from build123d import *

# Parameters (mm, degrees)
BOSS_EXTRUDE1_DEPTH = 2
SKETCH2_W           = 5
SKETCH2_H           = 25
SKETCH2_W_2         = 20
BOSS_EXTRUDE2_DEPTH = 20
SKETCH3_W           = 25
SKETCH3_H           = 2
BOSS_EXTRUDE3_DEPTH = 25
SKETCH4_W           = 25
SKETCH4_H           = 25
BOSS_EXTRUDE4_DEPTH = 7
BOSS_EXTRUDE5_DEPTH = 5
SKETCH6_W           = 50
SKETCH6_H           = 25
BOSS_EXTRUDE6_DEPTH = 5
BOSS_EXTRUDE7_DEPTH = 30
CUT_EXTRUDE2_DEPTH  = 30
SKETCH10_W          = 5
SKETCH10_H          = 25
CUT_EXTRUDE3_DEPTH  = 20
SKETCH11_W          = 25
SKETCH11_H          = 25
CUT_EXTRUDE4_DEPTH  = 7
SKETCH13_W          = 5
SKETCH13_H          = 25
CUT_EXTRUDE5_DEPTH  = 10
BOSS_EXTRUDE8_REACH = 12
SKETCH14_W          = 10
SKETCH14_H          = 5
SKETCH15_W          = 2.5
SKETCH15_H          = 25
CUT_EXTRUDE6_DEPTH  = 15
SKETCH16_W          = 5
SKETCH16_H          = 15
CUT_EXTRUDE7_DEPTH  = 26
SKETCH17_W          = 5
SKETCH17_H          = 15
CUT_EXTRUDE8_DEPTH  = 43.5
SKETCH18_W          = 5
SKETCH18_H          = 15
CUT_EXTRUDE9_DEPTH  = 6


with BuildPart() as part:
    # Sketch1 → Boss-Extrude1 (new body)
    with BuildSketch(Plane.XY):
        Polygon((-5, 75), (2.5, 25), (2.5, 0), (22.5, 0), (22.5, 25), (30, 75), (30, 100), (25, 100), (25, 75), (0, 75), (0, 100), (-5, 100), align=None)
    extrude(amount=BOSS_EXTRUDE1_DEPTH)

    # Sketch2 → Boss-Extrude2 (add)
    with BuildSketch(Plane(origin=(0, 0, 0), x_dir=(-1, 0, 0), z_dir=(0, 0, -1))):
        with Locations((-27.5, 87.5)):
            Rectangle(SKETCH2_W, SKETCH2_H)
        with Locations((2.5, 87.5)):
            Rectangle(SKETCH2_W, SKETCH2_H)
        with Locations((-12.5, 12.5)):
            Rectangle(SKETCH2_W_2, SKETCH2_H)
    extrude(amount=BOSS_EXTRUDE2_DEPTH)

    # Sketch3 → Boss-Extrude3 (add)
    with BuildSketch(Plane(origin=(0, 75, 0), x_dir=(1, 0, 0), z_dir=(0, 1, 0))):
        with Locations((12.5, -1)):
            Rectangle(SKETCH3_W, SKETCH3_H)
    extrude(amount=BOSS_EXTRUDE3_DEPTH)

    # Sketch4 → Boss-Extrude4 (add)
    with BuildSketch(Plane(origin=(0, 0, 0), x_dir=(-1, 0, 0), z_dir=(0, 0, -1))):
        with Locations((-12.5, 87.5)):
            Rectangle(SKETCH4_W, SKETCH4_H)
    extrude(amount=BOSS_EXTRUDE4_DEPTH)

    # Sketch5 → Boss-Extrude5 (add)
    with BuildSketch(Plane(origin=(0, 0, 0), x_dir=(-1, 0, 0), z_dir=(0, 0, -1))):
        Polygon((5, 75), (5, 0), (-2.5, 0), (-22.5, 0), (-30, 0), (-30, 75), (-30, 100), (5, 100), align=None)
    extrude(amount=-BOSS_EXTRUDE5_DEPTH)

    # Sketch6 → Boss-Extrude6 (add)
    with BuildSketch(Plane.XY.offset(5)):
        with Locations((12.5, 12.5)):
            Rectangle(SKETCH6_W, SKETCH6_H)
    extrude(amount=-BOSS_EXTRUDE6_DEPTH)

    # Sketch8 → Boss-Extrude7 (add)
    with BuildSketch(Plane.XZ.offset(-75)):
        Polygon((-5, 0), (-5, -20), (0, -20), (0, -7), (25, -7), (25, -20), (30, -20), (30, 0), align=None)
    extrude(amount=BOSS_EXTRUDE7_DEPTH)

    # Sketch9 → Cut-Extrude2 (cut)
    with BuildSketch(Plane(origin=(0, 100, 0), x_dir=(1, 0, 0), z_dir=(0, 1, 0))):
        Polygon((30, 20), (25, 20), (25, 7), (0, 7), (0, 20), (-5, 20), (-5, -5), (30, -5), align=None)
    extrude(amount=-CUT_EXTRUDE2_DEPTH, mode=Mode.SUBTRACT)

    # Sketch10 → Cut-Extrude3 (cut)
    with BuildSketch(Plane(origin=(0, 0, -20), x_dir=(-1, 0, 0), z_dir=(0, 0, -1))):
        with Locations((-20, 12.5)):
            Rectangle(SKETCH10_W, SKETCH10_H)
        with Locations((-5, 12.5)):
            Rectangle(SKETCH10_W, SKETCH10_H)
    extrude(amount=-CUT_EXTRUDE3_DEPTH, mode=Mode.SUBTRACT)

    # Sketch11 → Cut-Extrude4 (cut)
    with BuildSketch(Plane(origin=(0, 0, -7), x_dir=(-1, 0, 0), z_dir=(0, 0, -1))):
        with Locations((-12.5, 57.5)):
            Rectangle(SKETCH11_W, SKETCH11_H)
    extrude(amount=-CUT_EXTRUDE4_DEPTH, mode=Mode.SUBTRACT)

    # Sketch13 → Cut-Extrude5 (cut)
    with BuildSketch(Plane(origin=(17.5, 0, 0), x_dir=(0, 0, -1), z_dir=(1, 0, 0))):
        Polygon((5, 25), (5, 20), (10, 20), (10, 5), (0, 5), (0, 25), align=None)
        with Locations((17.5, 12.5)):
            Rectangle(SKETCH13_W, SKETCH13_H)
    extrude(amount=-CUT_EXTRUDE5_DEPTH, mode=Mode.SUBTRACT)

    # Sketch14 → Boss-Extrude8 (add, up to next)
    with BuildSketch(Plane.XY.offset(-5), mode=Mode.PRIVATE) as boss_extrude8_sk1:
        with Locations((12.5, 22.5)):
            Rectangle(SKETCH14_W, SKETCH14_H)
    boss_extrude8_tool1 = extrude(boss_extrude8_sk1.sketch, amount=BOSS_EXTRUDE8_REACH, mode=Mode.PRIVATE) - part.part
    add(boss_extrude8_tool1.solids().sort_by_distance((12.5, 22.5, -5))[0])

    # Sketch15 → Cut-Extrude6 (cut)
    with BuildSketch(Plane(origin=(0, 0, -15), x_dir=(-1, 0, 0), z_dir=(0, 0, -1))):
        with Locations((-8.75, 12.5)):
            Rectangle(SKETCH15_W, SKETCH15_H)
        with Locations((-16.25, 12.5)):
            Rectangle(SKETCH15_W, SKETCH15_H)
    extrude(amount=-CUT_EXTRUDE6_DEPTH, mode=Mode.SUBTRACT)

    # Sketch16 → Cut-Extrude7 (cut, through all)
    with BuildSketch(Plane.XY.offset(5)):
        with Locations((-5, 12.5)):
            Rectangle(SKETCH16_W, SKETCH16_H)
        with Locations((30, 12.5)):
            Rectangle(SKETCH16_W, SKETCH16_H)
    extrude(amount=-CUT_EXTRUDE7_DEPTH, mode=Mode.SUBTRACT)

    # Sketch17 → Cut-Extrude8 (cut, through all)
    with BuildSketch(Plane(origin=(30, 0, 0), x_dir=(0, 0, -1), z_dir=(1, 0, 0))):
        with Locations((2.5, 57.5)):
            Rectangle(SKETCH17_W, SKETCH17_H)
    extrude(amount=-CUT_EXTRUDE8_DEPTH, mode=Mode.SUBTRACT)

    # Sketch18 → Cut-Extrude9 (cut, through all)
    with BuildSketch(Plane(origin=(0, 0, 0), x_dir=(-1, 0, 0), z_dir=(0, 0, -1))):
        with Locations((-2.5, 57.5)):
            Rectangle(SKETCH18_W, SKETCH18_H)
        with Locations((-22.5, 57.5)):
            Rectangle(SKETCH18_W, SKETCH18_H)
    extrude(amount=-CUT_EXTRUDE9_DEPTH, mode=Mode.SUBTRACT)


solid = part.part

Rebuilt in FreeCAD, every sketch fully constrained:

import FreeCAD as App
import Part
import Sketcher
from FreeCAD import Vector

doc = App.newDocument("Part")
body = doc.addObject("PartDesign::Body", "Body")

sketch1 = body.newObject("Sketcher::SketchObject", "Sketch")
sketch1.AttachmentSupport = (doc.getObject("XY_Plane"), [""])
sketch1.MapMode = "FlatFace"
sketch1.addGeometry(Part.LineSegment(Vector(-5, 75, 0), Vector(2, 25, 0)), False)
sketch1.addGeometry(Part.LineSegment(Vector(2, 25, 0), Vector(2, 0, 0)), False)
sketch1.addGeometry(Part.LineSegment(Vector(2, 0, 0), Vector(22, 0, 0)), False)
sketch1.addGeometry(Part.LineSegment(Vector(22, 0, 0), Vector(22, 25, 0)), False)
sketch1.addGeometry(Part.LineSegment(Vector(22, 25, 0), Vector(30, 75, 0)), False)
sketch1.addGeometry(Part.LineSegment(Vector(30, 75, 0), Vector(30, 100, 0)), False)
sketch1.addGeometry(Part.LineSegment(Vector(30, 100, 0), Vector(25, 100, 0)), False)
sketch1.addGeometry(Part.LineSegment(Vector(25, 100, 0), Vector(25, 75, 0)), False)
sketch1.addGeometry(Part.LineSegment(Vector(25, 75, 0), Vector(0, 75, 0)), False)
sketch1.addGeometry(Part.LineSegment(Vector(0, 75, 0), Vector(0, 100, 0)), False)
sketch1.addGeometry(Part.LineSegment(Vector(0, 100, 0), Vector(-5, 100, 0)), False)
sketch1.addGeometry(Part.LineSegment(Vector(-5, 100, 0), Vector(-5, 75, 0)), False)
sketch1.addConstraint(Sketcher.Constraint("Coincident", 0, 2, 1, 1))
sketch1.addConstraint(Sketcher.Constraint("Coincident", 1, 2, 2, 1))
sketch1.addConstraint(Sketcher.Constraint("Coincident", 2, 2, 3, 1))
sketch1.addConstraint(Sketcher.Constraint("Coincident", 3, 2, 4, 1))
sketch1.addConstraint(Sketcher.Constraint("Coincident", 4, 2, 5, 1))
sketch1.addConstraint(Sketcher.Constraint("Coincident", 5, 2, 6, 1))
sketch1.addConstraint(Sketcher.Constraint("Coincident", 6, 2, 7, 1))
sketch1.addConstraint(Sketcher.Constraint("Coincident", 7, 2, 8, 1))
sketch1.addConstraint(Sketcher.Constraint("Coincident", 8, 2, 9, 1))
sketch1.addConstraint(Sketcher.Constraint("Coincident", 9, 2, 10, 1))
sketch1.addConstraint(Sketcher.Constraint("Coincident", 10, 2, 11, 1))
sketch1.addConstraint(Sketcher.Constraint("Coincident", 11, 2, 0, 1))
sketch1.addConstraint(Sketcher.Constraint("Vertical", 1))
sketch1.addConstraint(Sketcher.Constraint("Horizontal", 2))
sketch1.addConstraint(Sketcher.Constraint("Vertical", 3))
sketch1.addConstraint(Sketcher.Constraint("Vertical", 5))
sketch1.addConstraint(Sketcher.Constraint("Horizontal", 6))
sketch1.addConstraint(Sketcher.Constraint("Vertical", 7))
sketch1.addConstraint(Sketcher.Constraint("Horizontal", 8))
sketch1.addConstraint(Sketcher.Constraint("Vertical", 9))
sketch1.addConstraint(Sketcher.Constraint("Horizontal", 10))
sketch1.addConstraint(Sketcher.Constraint("Vertical", 11))
sketch1.addConstraint(Sketcher.Constraint("PointOnObject", 1, 2, -1))
sketch1.addConstraint(Sketcher.Constraint("PointOnObject", 8, 2, -2))
sketch1.addConstraint(Sketcher.Constraint("Horizontal", 0, 2, 3, 2))
sketch1.addConstraint(Sketcher.Constraint("Horizontal", 4, 2, 7, 2))
sketch1.addConstraint(Sketcher.Constraint("Horizontal", 6, 2, 9, 2))
sketch1.addConstraint(Sketcher.Constraint("Horizontal", 8, 2, 11, 2))
sketch1.addConstraint(Sketcher.Constraint("Equal", 6, 10))
sketch1.addConstraint(Sketcher.Constraint("Equal", 8, 1))
sketch1.addConstraint(Sketcher.Constraint("Equal", 3, 5))
sketch1.addConstraint(Sketcher.Constraint("Equal", 0, 4))
sketch1.addConstraint(Sketcher.Constraint("DistanceX", 2, 1, 2, 2, 20.0))
sketch1.addConstraint(Sketcher.Constraint("DistanceX", 6, 2, 6, 1, 5.0))
sketch1.addConstraint(Sketcher.Constraint("DistanceX", 8, 2, 8, 1, 25.0))
sketch1.addConstraint(Sketcher.Constraint("DistanceY", -1, 1, 4, 2, 75.0))
pad1 = body.newObject("PartDesign::Pad", "Pad")
pad1.Profile = sketch1
pad1.Length = 2

sketch2 = body.newObject("Sketcher::SketchObject", "Sketch001")
sketch2.AttachmentSupport = (doc.getObject("XY_Plane"), [""])
sketch2.MapMode = "FlatFace"
sketch2.addGeometry(Part.LineSegment(Vector(30, 100, 0), Vector(30, 75, 0)), False)
sketch2.addGeometry(Part.LineSegment(Vector(30, 75, 0), Vector(25, 75, 0)), False)
sketch2.addGeometry(Part.LineSegment(Vector(25, 75, 0), Vector(25, 100, 0)), False)
sketch2.addGeometry(Part.LineSegment(Vector(25, 100, 0), Vector(30, 100, 0)), False)
sketch2.addGeometry(Part.LineSegment(Vector(0, 100, 0), Vector(0, 75, 0)), False)
sketch2.addGeometry(Part.LineSegment(Vector(0, 75, 0), Vector(-5, 75, 0)), False)
sketch2.addGeometry(Part.LineSegment(Vector(-5, 75, 0), Vector(-5, 100, 0)), False)
sketch2.addGeometry(Part.LineSegment(Vector(-5, 100, 0), Vector(0, 100, 0)), False)
sketch2.addGeometry(Part.LineSegment(Vector(22, 25, 0), Vector(22, 0, 0)), False)
sketch2.addGeometry(Part.LineSegment(Vector(22, 0, 0), Vector(2, 0, 0)), False)
sketch2.addGeometry(Part.LineSegment(Vector(2, 0, 0), Vector(2, 25, 0)), False)
sketch2.addGeometry(Part.LineSegment(Vector(2, 25, 0), Vector(22, 25, 0)), False)
sketch2.addConstraint(Sketcher.Constraint("Coincident", 0, 2, 1, 1))
sketch2.addConstraint(Sketcher.Constraint("Coincident", 1, 2, 2, 1))
sketch2.addConstraint(Sketcher.Constraint("Coincident", 2, 2, 3, 1))
sketch2.addConstraint(Sketcher.Constraint("Coincident", 3, 2, 0, 1))
sketch2.addConstraint(Sketcher.Constraint("Coincident", 4, 2, 5, 1))
sketch2.addConstraint(Sketcher.Constraint("Coincident", 5, 2, 6, 1))
sketch2.addConstraint(Sketcher.Constraint("Coincident", 6, 2, 7, 1))
sketch2.addConstraint(Sketcher.Constraint("Coincident", 7, 2, 4, 1))
sketch2.addConstraint(Sketcher.Constraint("Coincident", 8, 2, 9, 1))
sketch2.addConstraint(Sketcher.Constraint("Coincident", 9, 2, 10, 1))
sketch2.addConstraint(Sketcher.Constraint("Coincident", 10, 2, 11, 1))
sketch2.addConstraint(Sketcher.Constraint("Coincident", 11, 2, 8, 1))
sketch2.addConstraint(Sketcher.Constraint("Vertical", 0))
sketch2.addConstraint(Sketcher.Constraint("Horizontal", 1))
sketch2.addConstraint(Sketcher.Constraint("Vertical", 2))
sketch2.addConstraint(Sketcher.Constraint("Horizontal", 3))
sketch2.addConstraint(Sketcher.Constraint("Vertical", 4))
sketch2.addConstraint(Sketcher.Constraint("Horizontal", 5))
sketch2.addConstraint(Sketcher.Constraint("Vertical", 6))
sketch2.addConstraint(Sketcher.Constraint("Horizontal", 7))
sketch2.addConstraint(Sketcher.Constraint("Vertical", 8))
sketch2.addConstraint(Sketcher.Constraint("Horizontal", 9))
sketch2.addConstraint(Sketcher.Constraint("Vertical", 10))
sketch2.addConstraint(Sketcher.Constraint("Horizontal", 11))
sketch2.addConstraint(Sketcher.Constraint("PointOnObject", 4, 2, -2))
sketch2.addConstraint(Sketcher.Constraint("PointOnObject", 8, 2, -1))
sketch2.addConstraint(Sketcher.Constraint("Horizontal", 1, 2, 4, 2))
sketch2.addConstraint(Sketcher.Constraint("Horizontal", 3, 2, 6, 2))
sketch2.addConstraint(Sketcher.Constraint("Equal", 3, 5))
sketch2.addConstraint(Sketcher.Constraint("Equal", 6, 8))
sketch2.addConstraint(Sketcher.Constraint("DistanceX", 1, 2, 1, 1, 5.0))
sketch2.addConstraint(Sketcher.Constraint("DistanceX", 9, 2, 9, 1, 20.0))
sketch2.addConstraint(Sketcher.Constraint("DistanceY", 0, 2, 0, 1, 25.0))
sketch2.addConstraint(Sketcher.Constraint("DistanceX", -1, 1, 0, 2, 30.0))
sketch2.addConstraint(Sketcher.Constraint("DistanceY", -1, 1, 0, 2, 75.0))
sketch2.addConstraint(Sketcher.Constraint("DistanceX", -1, 1, 8, 2, 22.5))
pad2 = body.newObject("PartDesign::Pad", "Pad001")
pad2.Profile = sketch2
pad2.Length = 20
pad2.Reversed = True

sketch3 = body.newObject("Sketcher::SketchObject", "Sketch002")
sketch3.AttachmentSupport = (doc.getObject("XZ_Plane"), [""])
sketch3.MapMode = "FlatFace"
sketch3.AttachmentOffset = App.Placement(Vector(0, 0, -75), App.Rotation())
sketch3.addGeometry(Part.LineSegment(Vector(0, 0, 0), Vector(0, 2, 0)), False)
sketch3.addGeometry(Part.LineSegment(Vector(0, 2, 0), Vector(25, 2, 0)), False)
sketch3.addGeometry(Part.LineSegment(Vector(25, 2, 0), Vector(25, 0, 0)), False)
sketch3.addGeometry(Part.LineSegment(Vector(25, 0, 0), Vector(0, 0, 0)), False)
sketch3.addConstraint(Sketcher.Constraint("Coincident", 0, 2, 1, 1))
sketch3.addConstraint(Sketcher.Constraint("Coincident", 1, 2, 2, 1))
sketch3.addConstraint(Sketcher.Constraint("Coincident", 2, 2, 3, 1))
sketch3.addConstraint(Sketcher.Constraint("Coincident", 3, 2, 0, 1))
sketch3.addConstraint(Sketcher.Constraint("Vertical", 0))
sketch3.addConstraint(Sketcher.Constraint("Horizontal", 1))
sketch3.addConstraint(Sketcher.Constraint("Vertical", 2))
sketch3.addConstraint(Sketcher.Constraint("Horizontal", 3))
sketch3.addConstraint(Sketcher.Constraint("Coincident", 3, 2, -1, 1))
sketch3.addConstraint(Sketcher.Constraint("DistanceX", 1, 1, 1, 2, 25.0))
sketch3.addConstraint(Sketcher.Constraint("DistanceY", 0, 1, 0, 2, 2.0))
pad3 = body.newObject("PartDesign::Pad", "Pad002")
pad3.Profile = sketch3
pad3.Length = 25
pad3.Reversed = True

sketch4 = body.newObject("Sketcher::SketchObject", "Sketch003")
sketch4.AttachmentSupport = (doc.getObject("XY_Plane"), [""])
sketch4.MapMode = "FlatFace"
sketch4.addGeometry(Part.LineSegment(Vector(25, 100, 0), Vector(25, 75, 0)), False)
sketch4.addGeometry(Part.LineSegment(Vector(25, 75, 0), Vector(0, 75, 0)), False)
sketch4.addGeometry(Part.LineSegment(Vector(0, 75, 0), Vector(0, 100, 0)), False)
sketch4.addGeometry(Part.LineSegment(Vector(0, 100, 0), Vector(25, 100, 0)), False)
sketch4.addConstraint(Sketcher.Constraint("Coincident", 0, 2, 1, 1))
sketch4.addConstraint(Sketcher.Constraint("Coincident", 1, 2, 2, 1))
sketch4.addConstraint(Sketcher.Constraint("Coincident", 2, 2, 3, 1))
sketch4.addConstraint(Sketcher.Constraint("Coincident", 3, 2, 0, 1))
sketch4.addConstraint(Sketcher.Constraint("Vertical", 0))
sketch4.addConstraint(Sketcher.Constraint("Horizontal", 1))
sketch4.addConstraint(Sketcher.Constraint("Vertical", 2))
sketch4.addConstraint(Sketcher.Constraint("Horizontal", 3))
sketch4.addConstraint(Sketcher.Constraint("PointOnObject", 1, 2, -2))
sketch4.addConstraint(Sketcher.Constraint("Equal", 3, 0))
sketch4.addConstraint(Sketcher.Constraint("DistanceX", 1, 2, 1, 1, 25.0))
sketch4.addConstraint(Sketcher.Constraint("DistanceY", -1, 1, 0, 2, 75.0))
pad4 = body.newObject("PartDesign::Pad", "Pad003")
pad4.Profile = sketch4
pad4.Length = 7
pad4.Reversed = True

sketch5 = body.newObject("Sketcher::SketchObject", "Sketch004")
sketch5.AttachmentSupport = (doc.getObject("XY_Plane"), [""])
sketch5.MapMode = "FlatFace"
sketch5.addGeometry(Part.LineSegment(Vector(-5, 0, 0), Vector(-5, 100, 0)), False)
sketch5.addGeometry(Part.LineSegment(Vector(-5, 100, 0), Vector(30, 100, 0)), False)
sketch5.addGeometry(Part.LineSegment(Vector(30, 100, 0), Vector(30, 0, 0)), False)
sketch5.addGeometry(Part.LineSegment(Vector(30, 0, 0), Vector(-5, 0, 0)), False)
sketch5.addConstraint(Sketcher.Constraint("Coincident", 0, 2, 1, 1))
sketch5.addConstraint(Sketcher.Constraint("Coincident", 1, 2, 2, 1))
sketch5.addConstraint(Sketcher.Constraint("Coincident", 2, 2, 3, 1))
sketch5.addConstraint(Sketcher.Constraint("Coincident", 3, 2, 0, 1))
sketch5.addConstraint(Sketcher.Constraint("Vertical", 0))
sketch5.addConstraint(Sketcher.Constraint("Horizontal", 1))
sketch5.addConstraint(Sketcher.Constraint("Vertical", 2))
sketch5.addConstraint(Sketcher.Constraint("Horizontal", 3))
sketch5.addConstraint(Sketcher.Constraint("PointOnObject", 2, 2, -1))
sketch5.addConstraint(Sketcher.Constraint("DistanceX", 1, 1, 1, 2, 35.0))
sketch5.addConstraint(Sketcher.Constraint("DistanceY", 0, 1, 0, 2, 100.0))
sketch5.addConstraint(Sketcher.Constraint("DistanceX", 0, 2, -1, 1, 5.0))
pad5 = body.newObject("PartDesign::Pad", "Pad004")
pad5.Profile = sketch5
pad5.Length = 5

sketch6 = body.newObject("Sketcher::SketchObject", "Sketch005")
sketch6.AttachmentSupport = (doc.getObject("XY_Plane"), [""])
sketch6.MapMode = "FlatFace"
sketch6.AttachmentOffset = App.Placement(Vector(0, 0, 5), App.Rotation())
sketch6.addGeometry(Part.LineSegment(Vector(-12, 25, 0), Vector(-12, 0, 0)), False)
sketch6.addGeometry(Part.LineSegment(Vector(-12, 0, 0), Vector(38, 0, 0)), False)
sketch6.addGeometry(Part.LineSegment(Vector(38, 0, 0), Vector(38, 25, 0)), False)
sketch6.addGeometry(Part.LineSegment(Vector(38, 25, 0), Vector(-12, 25, 0)), False)
sketch6.addConstraint(Sketcher.Constraint("Coincident", 0, 2, 1, 1))
sketch6.addConstraint(Sketcher.Constraint("Coincident", 1, 2, 2, 1))
sketch6.addConstraint(Sketcher.Constraint("Coincident", 2, 2, 3, 1))
sketch6.addConstraint(Sketcher.Constraint("Coincident", 3, 2, 0, 1))
sketch6.addConstraint(Sketcher.Constraint("Vertical", 0))
sketch6.addConstraint(Sketcher.Constraint("Horizontal", 1))
sketch6.addConstraint(Sketcher.Constraint("Vertical", 2))
sketch6.addConstraint(Sketcher.Constraint("Horizontal", 3))
sketch6.addConstraint(Sketcher.Constraint("PointOnObject", 0, 2, -1))
sketch6.addConstraint(Sketcher.Constraint("DistanceX", 1, 1, 1, 2, 50.0))
sketch6.addConstraint(Sketcher.Constraint("DistanceY", 0, 2, 0, 1, 25.0))
sketch6.addConstraint(Sketcher.Constraint("DistanceX", 0, 2, -1, 1, 12.5))
pad6 = body.newObject("PartDesign::Pad", "Pad005")
pad6.Profile = sketch6
pad6.Length = 5
pad6.Reversed = True

sketch7 = body.newObject("Sketcher::SketchObject", "Sketch006")
sketch7.AttachmentSupport = (doc.getObject("XZ_Plane"), [""])
sketch7.MapMode = "FlatFace"
sketch7.AttachmentOffset = App.Placement(Vector(0, 0, -75), App.Rotation())
sketch7.addGeometry(Part.LineSegment(Vector(-5, 0, 0), Vector(-5, -20, 0)), False)
sketch7.addGeometry(Part.LineSegment(Vector(-5, -20, 0), Vector(0, -20, 0)), False)
sketch7.addGeometry(Part.LineSegment(Vector(0, -20, 0), Vector(0, -7, 0)), False)
sketch7.addGeometry(Part.LineSegment(Vector(0, -7, 0), Vector(25, -7, 0)), False)
sketch7.addGeometry(Part.LineSegment(Vector(25, -7, 0), Vector(25, -20, 0)), False)
sketch7.addGeometry(Part.LineSegment(Vector(25, -20, 0), Vector(30, -20, 0)), False)
sketch7.addGeometry(Part.LineSegment(Vector(30, -20, 0), Vector(30, 0, 0)), False)
sketch7.addGeometry(Part.LineSegment(Vector(30, 0, 0), Vector(-5, 0, 0)), False)
sketch7.addConstraint(Sketcher.Constraint("Coincident", 0, 2, 1, 1))
sketch7.addConstraint(Sketcher.Constraint("Coincident", 1, 2, 2, 1))
sketch7.addConstraint(Sketcher.Constraint("Coincident", 2, 2, 3, 1))
sketch7.addConstraint(Sketcher.Constraint("Coincident", 3, 2, 4, 1))
sketch7.addConstraint(Sketcher.Constraint("Coincident", 4, 2, 5, 1))
sketch7.addConstraint(Sketcher.Constraint("Coincident", 5, 2, 6, 1))
sketch7.addConstraint(Sketcher.Constraint("Coincident", 6, 2, 7, 1))
sketch7.addConstraint(Sketcher.Constraint("Coincident", 7, 2, 0, 1))
sketch7.addConstraint(Sketcher.Constraint("Vertical", 0))
sketch7.addConstraint(Sketcher.Constraint("Horizontal", 1))
sketch7.addConstraint(Sketcher.Constraint("Vertical", 2))
sketch7.addConstraint(Sketcher.Constraint("Horizontal", 3))
sketch7.addConstraint(Sketcher.Constraint("Vertical", 4))
sketch7.addConstraint(Sketcher.Constraint("Horizontal", 5))
sketch7.addConstraint(Sketcher.Constraint("Vertical", 6))
sketch7.addConstraint(Sketcher.Constraint("Horizontal", 7))
sketch7.addConstraint(Sketcher.Constraint("PointOnObject", 1, 2, -2))
sketch7.addConstraint(Sketcher.Constraint("PointOnObject", 6, 2, -1))
sketch7.addConstraint(Sketcher.Constraint("Horizontal", 1, 2, 4, 2))
sketch7.addConstraint(Sketcher.Constraint("Equal", 1, 5))
sketch7.addConstraint(Sketcher.Constraint("DistanceX", 1, 1, 1, 2, 5.0))
sketch7.addConstraint(Sketcher.Constraint("DistanceX", 3, 1, 3, 2, 25.0))
sketch7.addConstraint(Sketcher.Constraint("DistanceY", 0, 2, 0, 1, 20.0))
sketch7.addConstraint(Sketcher.Constraint("DistanceY", 2, 1, 2, 2, 13.0))
pad7 = body.newObject("PartDesign::Pad", "Pad006")
pad7.Profile = sketch7
pad7.Length = 30

sketch8 = body.newObject("Sketcher::SketchObject", "Sketch007")
sketch8.AttachmentSupport = (doc.getObject("XZ_Plane"), [""])
sketch8.MapMode = "FlatFace"
sketch8.AttachmentOffset = App.Placement(Vector(0, 0, -100), App.Rotation())
sketch8.addGeometry(Part.LineSegment(Vector(30, -20, 0), Vector(25, -20, 0)), False)
sketch8.addGeometry(Part.LineSegment(Vector(25, -20, 0), Vector(25, -7, 0)), False)
sketch8.addGeometry(Part.LineSegment(Vector(25, -7, 0), Vector(0, -7, 0)), False)
sketch8.addGeometry(Part.LineSegment(Vector(0, -7, 0), Vector(0, -20, 0)), False)
sketch8.addGeometry(Part.LineSegment(Vector(0, -20, 0), Vector(-5, -20, 0)), False)
sketch8.addGeometry(Part.LineSegment(Vector(-5, -20, 0), Vector(-5, 5, 0)), False)
sketch8.addGeometry(Part.LineSegment(Vector(-5, 5, 0), Vector(30, 5, 0)), False)
sketch8.addGeometry(Part.LineSegment(Vector(30, 5, 0), Vector(30, -20, 0)), False)
sketch8.addConstraint(Sketcher.Constraint("Coincident", 0, 2, 1, 1))
sketch8.addConstraint(Sketcher.Constraint("Coincident", 1, 2, 2, 1))
sketch8.addConstraint(Sketcher.Constraint("Coincident", 2, 2, 3, 1))
sketch8.addConstraint(Sketcher.Constraint("Coincident", 3, 2, 4, 1))
sketch8.addConstraint(Sketcher.Constraint("Coincident", 4, 2, 5, 1))
sketch8.addConstraint(Sketcher.Constraint("Coincident", 5, 2, 6, 1))
sketch8.addConstraint(Sketcher.Constraint("Coincident", 6, 2, 7, 1))
sketch8.addConstraint(Sketcher.Constraint("Coincident", 7, 2, 0, 1))
sketch8.addConstraint(Sketcher.Constraint("Horizontal", 0))
sketch8.addConstraint(Sketcher.Constraint("Vertical", 1))
sketch8.addConstraint(Sketcher.Constraint("Horizontal", 2))
sketch8.addConstraint(Sketcher.Constraint("Vertical", 3))
sketch8.addConstraint(Sketcher.Constraint("Horizontal", 4))
sketch8.addConstraint(Sketcher.Constraint("Vertical", 5))
sketch8.addConstraint(Sketcher.Constraint("Horizontal", 6))
sketch8.addConstraint(Sketcher.Constraint("Vertical", 7))
sketch8.addConstraint(Sketcher.Constraint("PointOnObject", 2, 2, -2))
sketch8.addConstraint(Sketcher.Constraint("Horizontal", 0, 2, 3, 2))
sketch8.addConstraint(Sketcher.Constraint("Equal", 0, 4))
sketch8.addConstraint(Sketcher.Constraint("Equal", 2, 5))
sketch8.addConstraint(Sketcher.Constraint("DistanceX", 0, 2, 0, 1, 5.0))
sketch8.addConstraint(Sketcher.Constraint("DistanceX", 2, 2, 2, 1, 25.0))
sketch8.addConstraint(Sketcher.Constraint("DistanceY", 1, 1, 1, 2, 13.0))
sketch8.addConstraint(Sketcher.Constraint("DistanceY", 0, 2, -1, 1, 20.0))
pocket1 = body.newObject("PartDesign::Pocket", "Pocket")
pocket1.Profile = sketch8
pocket1.Length = 30
pocket1.Reversed = True

sketch9 = body.newObject("Sketcher::SketchObject", "Sketch008")
sketch9.AttachmentSupport = (doc.getObject("XY_Plane"), [""])
sketch9.MapMode = "FlatFace"
sketch9.AttachmentOffset = App.Placement(Vector(0, 0, -20), App.Rotation())
sketch9.addGeometry(Part.LineSegment(Vector(22, 25, 0), Vector(22, 0, 0)), False)
sketch9.addGeometry(Part.LineSegment(Vector(22, 0, 0), Vector(18, 0, 0)), False)
sketch9.addGeometry(Part.LineSegment(Vector(18, 0, 0), Vector(18, 25, 0)), False)
sketch9.addGeometry(Part.LineSegment(Vector(18, 25, 0), Vector(22, 25, 0)), False)
sketch9.addGeometry(Part.LineSegment(Vector(8, 25, 0), Vector(8, 0, 0)), False)
sketch9.addGeometry(Part.LineSegment(Vector(8, 0, 0), Vector(2, 0, 0)), False)
sketch9.addGeometry(Part.LineSegment(Vector(2, 0, 0), Vector(2, 25, 0)), False)
sketch9.addGeometry(Part.LineSegment(Vector(2, 25, 0), Vector(8, 25, 0)), False)
sketch9.addConstraint(Sketcher.Constraint("Coincident", 0, 2, 1, 1))
sketch9.addConstraint(Sketcher.Constraint("Coincident", 1, 2, 2, 1))
sketch9.addConstraint(Sketcher.Constraint("Coincident", 2, 2, 3, 1))
sketch9.addConstraint(Sketcher.Constraint("Coincident", 3, 2, 0, 1))
sketch9.addConstraint(Sketcher.Constraint("Coincident", 4, 2, 5, 1))
sketch9.addConstraint(Sketcher.Constraint("Coincident", 5, 2, 6, 1))
sketch9.addConstraint(Sketcher.Constraint("Coincident", 6, 2, 7, 1))
sketch9.addConstraint(Sketcher.Constraint("Coincident", 7, 2, 4, 1))
sketch9.addConstraint(Sketcher.Constraint("Vertical", 0))
sketch9.addConstraint(Sketcher.Constraint("Horizontal", 1))
sketch9.addConstraint(Sketcher.Constraint("Vertical", 2))
sketch9.addConstraint(Sketcher.Constraint("Horizontal", 3))
sketch9.addConstraint(Sketcher.Constraint("Vertical", 4))
sketch9.addConstraint(Sketcher.Constraint("Horizontal", 5))
sketch9.addConstraint(Sketcher.Constraint("Vertical", 6))
sketch9.addConstraint(Sketcher.Constraint("Horizontal", 7))
sketch9.addConstraint(Sketcher.Constraint("PointOnObject", 0, 2, -1))
sketch9.addConstraint(Sketcher.Constraint("PointOnObject", 4, 2, -1))
sketch9.addConstraint(Sketcher.Constraint("Horizontal", 3, 2, 6, 2))
sketch9.addConstraint(Sketcher.Constraint("Equal", 3, 5))
sketch9.addConstraint(Sketcher.Constraint("DistanceX", 1, 2, 1, 1, 5.0))
sketch9.addConstraint(Sketcher.Constraint("DistanceY", 0, 2, 0, 1, 25.0))
sketch9.addConstraint(Sketcher.Constraint("DistanceX", 4, 2, 1, 2, 10.0))
sketch9.addConstraint(Sketcher.Constraint("DistanceX", -1, 1, 0, 2, 22.5))
pocket2 = body.newObject("PartDesign::Pocket", "Pocket001")
pocket2.Profile = sketch9
pocket2.Length = 20
pocket2.Reversed = True

sketch10 = body.newObject("Sketcher::SketchObject", "Sketch009")
sketch10.AttachmentSupport = (doc.getObject("XY_Plane"), [""])
sketch10.MapMode = "FlatFace"
sketch10.AttachmentOffset = App.Placement(Vector(0, 0, -7), App.Rotation())
sketch10.addGeometry(Part.LineSegment(Vector(25, 70, 0), Vector(25, 45, 0)), False)
sketch10.addGeometry(Part.LineSegment(Vector(25, 45, 0), Vector(0, 45, 0)), False)
sketch10.addGeometry(Part.LineSegment(Vector(0, 45, 0), Vector(0, 70, 0)), False)
sketch10.addGeometry(Part.LineSegment(Vector(0, 70, 0), Vector(25, 70, 0)), False)
sketch10.addConstraint(Sketcher.Constraint("Coincident", 0, 2, 1, 1))
sketch10.addConstraint(Sketcher.Constraint("Coincident", 1, 2, 2, 1))
sketch10.addConstraint(Sketcher.Constraint("Coincident", 2, 2, 3, 1))
sketch10.addConstraint(Sketcher.Constraint("Coincident", 3, 2, 0, 1))
sketch10.addConstraint(Sketcher.Constraint("Vertical", 0))
sketch10.addConstraint(Sketcher.Constraint("Horizontal", 1))
sketch10.addConstraint(Sketcher.Constraint("Vertical", 2))
sketch10.addConstraint(Sketcher.Constraint("Horizontal", 3))
sketch10.addConstraint(Sketcher.Constraint("PointOnObject", 1, 2, -2))
sketch10.addConstraint(Sketcher.Constraint("Equal", 3, 0))
sketch10.addConstraint(Sketcher.Constraint("DistanceX", 1, 2, 1, 1, 25.0))
sketch10.addConstraint(Sketcher.Constraint("DistanceY", -1, 1, 0, 2, 45.0))
pocket3 = body.newObject("PartDesign::Pocket", "Pocket002")
pocket3.Profile = sketch10
pocket3.Length = 7
pocket3.Reversed = True

sketch11 = body.newObject("Sketcher::SketchObject", "Sketch010")
sketch11.AttachmentSupport = (doc.getObject("YZ_Plane"), [""])
sketch11.MapMode = "FlatFace"
sketch11.AttachmentOffset = App.Placement(Vector(0, 0, 17.5), App.Rotation())
sketch11.addGeometry(Part.LineSegment(Vector(20, -5, 0), Vector(25, -5, 0)), False)
sketch11.addGeometry(Part.LineSegment(Vector(25, -5, 0), Vector(25, 0, 0)), False)
sketch11.addGeometry(Part.LineSegment(Vector(25, 0, 0), Vector(5, 0, 0)), False)
sketch11.addGeometry(Part.LineSegment(Vector(5, 0, 0), Vector(5, -10, 0)), False)
sketch11.addGeometry(Part.LineSegment(Vector(5, -10, 0), Vector(20, -10, 0)), False)
sketch11.addGeometry(Part.LineSegment(Vector(20, -10, 0), Vector(20, -5, 0)), False)
sketch11.addGeometry(Part.LineSegment(Vector(25, -15, 0), Vector(0, -15, 0)), False)
sketch11.addGeometry(Part.LineSegment(Vector(0, -15, 0), Vector(0, -20, 0)), False)
sketch11.addGeometry(Part.LineSegment(Vector(0, -20, 0), Vector(25, -20, 0)), False)
sketch11.addGeometry(Part.LineSegment(Vector(25, -20, 0), Vector(25, -15, 0)), False)
sketch11.addConstraint(Sketcher.Constraint("Coincident", 0, 2, 1, 1))
sketch11.addConstraint(Sketcher.Constraint("Coincident", 1, 2, 2, 1))
sketch11.addConstraint(Sketcher.Constraint("Coincident", 2, 2, 3, 1))
sketch11.addConstraint(Sketcher.Constraint("Coincident", 3, 2, 4, 1))
sketch11.addConstraint(Sketcher.Constraint("Coincident", 4, 2, 5, 1))
sketch11.addConstraint(Sketcher.Constraint("Coincident", 5, 2, 0, 1))
sketch11.addConstraint(Sketcher.Constraint("Coincident", 6, 2, 7, 1))
sketch11.addConstraint(Sketcher.Constraint("Coincident", 7, 2, 8, 1))
sketch11.addConstraint(Sketcher.Constraint("Coincident", 8, 2, 9, 1))
sketch11.addConstraint(Sketcher.Constraint("Coincident", 9, 2, 6, 1))
sketch11.addConstraint(Sketcher.Constraint("Horizontal", 0))
sketch11.addConstraint(Sketcher.Constraint("Vertical", 1))
sketch11.addConstraint(Sketcher.Constraint("Horizontal", 2))
sketch11.addConstraint(Sketcher.Constraint("Vertical", 3))
sketch11.addConstraint(Sketcher.Constraint("Horizontal", 4))
sketch11.addConstraint(Sketcher.Constraint("Vertical", 5))
sketch11.addConstraint(Sketcher.Constraint("Horizontal", 6))
sketch11.addConstraint(Sketcher.Constraint("Vertical", 7))
sketch11.addConstraint(Sketcher.Constraint("Horizontal", 8))
sketch11.addConstraint(Sketcher.Constraint("Vertical", 9))
sketch11.addConstraint(Sketcher.Constraint("PointOnObject", 1, 2, -1))
sketch11.addConstraint(Sketcher.Constraint("PointOnObject", 6, 2, -2))
sketch11.addConstraint(Sketcher.Constraint("Vertical", 1, 2, 8, 2))
sketch11.addConstraint(Sketcher.Constraint("Equal", 0, 1))
sketch11.addConstraint(Sketcher.Constraint("Equal", 1, 5))
sketch11.addConstraint(Sketcher.Constraint("Equal", 5, 7))
sketch11.addConstraint(Sketcher.Constraint("DistanceX", 0, 1, 0, 2, 5.0))
sketch11.addConstraint(Sketcher.Constraint("DistanceX", 2, 2, 2, 1, 20.0))
sketch11.addConstraint(Sketcher.Constraint("DistanceX", 6, 2, 6, 1, 25.0))
sketch11.addConstraint(Sketcher.Constraint("DistanceY", 6, 2, -1, 1, 15.0))
pocket4 = body.newObject("PartDesign::Pocket", "Pocket003")
pocket4.Profile = sketch11
pocket4.Length = 10

sketch12 = body.newObject("Sketcher::SketchObject", "Sketch011")
sketch12.AttachmentSupport = (doc.getObject("XY_Plane"), [""])
sketch12.MapMode = "FlatFace"
sketch12.AttachmentOffset = App.Placement(Vector(0, 0, -5), App.Rotation())
sketch12.addGeometry(Part.LineSegment(Vector(8, 25, 0), Vector(8, 20, 0)), False)
sketch12.addGeometry(Part.LineSegment(Vector(8, 20, 0), Vector(18, 20, 0)), False)
sketch12.addGeometry(Part.LineSegment(Vector(18, 20, 0), Vector(18, 25, 0)), False)
sketch12.addGeometry(Part.LineSegment(Vector(18, 25, 0), Vector(8, 25, 0)), False)
sketch12.addConstraint(Sketcher.Constraint("Coincident", 0, 2, 1, 1))
sketch12.addConstraint(Sketcher.Constraint("Coincident", 1, 2, 2, 1))
sketch12.addConstraint(Sketcher.Constraint("Coincident", 2, 2, 3, 1))
sketch12.addConstraint(Sketcher.Constraint("Coincident", 3, 2, 0, 1))
sketch12.addConstraint(Sketcher.Constraint("Vertical", 0))
sketch12.addConstraint(Sketcher.Constraint("Horizontal", 1))
sketch12.addConstraint(Sketcher.Constraint("Vertical", 2))
sketch12.addConstraint(Sketcher.Constraint("Horizontal", 3))
sketch12.addConstraint(Sketcher.Constraint("DistanceX", 1, 1, 1, 2, 10.0))
sketch12.addConstraint(Sketcher.Constraint("DistanceY", 0, 2, 0, 1, 5.0))
sketch12.addConstraint(Sketcher.Constraint("DistanceY", -1, 1, 0, 2, 20.0))
sketch12.addConstraint(Sketcher.Constraint("DistanceX", -1, 1, 0, 2, 7.5))
pad8 = body.newObject("PartDesign::Pad", "Pad007")
pad8.Profile = sketch12
pad8.Type = "UpToFirst"

sketch13 = body.newObject("Sketcher::SketchObject", "Sketch012")
sketch13.AttachmentSupport = (doc.getObject("XY_Plane"), [""])
sketch13.MapMode = "FlatFace"
sketch13.AttachmentOffset = App.Placement(Vector(0, 0, -15), App.Rotation())
sketch13.addGeometry(Part.LineSegment(Vector(10, 25, 0), Vector(10, 0, 0)), False)
sketch13.addGeometry(Part.LineSegment(Vector(10, 0, 0), Vector(7.5, 0, 0)), False)
sketch13.addGeometry(Part.LineSegment(Vector(7.5, 0, 0), Vector(7.5, 25, 0)), False)
sketch13.addGeometry(Part.LineSegment(Vector(7.5, 25, 0), Vector(10, 25, 0)), False)
sketch13.addGeometry(Part.LineSegment(Vector(17.5, 25, 0), Vector(17.5, 0, 0)), False)
sketch13.addGeometry(Part.LineSegment(Vector(17.5, 0, 0), Vector(15, 0, 0)), False)
sketch13.addGeometry(Part.LineSegment(Vector(15, 0, 0), Vector(15, 25, 0)), False)
sketch13.addGeometry(Part.LineSegment(Vector(15, 25, 0), Vector(17.5, 25, 0)), False)
sketch13.addConstraint(Sketcher.Constraint("Coincident", 0, 2, 1, 1))
sketch13.addConstraint(Sketcher.Constraint("Coincident", 1, 2, 2, 1))
sketch13.addConstraint(Sketcher.Constraint("Coincident", 2, 2, 3, 1))
sketch13.addConstraint(Sketcher.Constraint("Coincident", 3, 2, 0, 1))
sketch13.addConstraint(Sketcher.Constraint("Coincident", 4, 2, 5, 1))
sketch13.addConstraint(Sketcher.Constraint("Coincident", 5, 2, 6, 1))
sketch13.addConstraint(Sketcher.Constraint("Coincident", 6, 2, 7, 1))
sketch13.addConstraint(Sketcher.Constraint("Coincident", 7, 2, 4, 1))
sketch13.addConstraint(Sketcher.Constraint("Vertical", 0))
sketch13.addConstraint(Sketcher.Constraint("Horizontal", 1))
sketch13.addConstraint(Sketcher.Constraint("Vertical", 2))
sketch13.addConstraint(Sketcher.Constraint("Horizontal", 3))
sketch13.addConstraint(Sketcher.Constraint("Vertical", 4))
sketch13.addConstraint(Sketcher.Constraint("Horizontal", 5))
sketch13.addConstraint(Sketcher.Constraint("Vertical", 6))
sketch13.addConstraint(Sketcher.Constraint("Horizontal", 7))
sketch13.addConstraint(Sketcher.Constraint("PointOnObject", 0, 2, -1))
sketch13.addConstraint(Sketcher.Constraint("PointOnObject", 4, 2, -1))
sketch13.addConstraint(Sketcher.Constraint("Horizontal", 3, 2, 6, 2))
sketch13.addConstraint(Sketcher.Constraint("Equal", 3, 5))
sketch13.addConstraint(Sketcher.Constraint("DistanceY", 0, 2, 0, 1, 25.0))
sketch13.addConstraint(Sketcher.Constraint("DistanceX", 1, 2, 1, 1, 2.5))
sketch13.addConstraint(Sketcher.Constraint("DistanceX", -1, 1, 0, 2, 10.0))
sketch13.addConstraint(Sketcher.Constraint("DistanceX", -1, 1, 5, 2, 15.0))
pocket5 = body.newObject("PartDesign::Pocket", "Pocket004")
pocket5.Profile = sketch13
pocket5.Length = 15
pocket5.Reversed = True

sketch14 = body.newObject("Sketcher::SketchObject", "Sketch013")
sketch14.AttachmentSupport = (doc.getObject("XY_Plane"), [""])
sketch14.MapMode = "FlatFace"
sketch14.AttachmentOffset = App.Placement(Vector(0, 0, 5), App.Rotation())
sketch14.addGeometry(Part.LineSegment(Vector(-8, 20, 0), Vector(-8, 5, 0)), False)
sketch14.addGeometry(Part.LineSegment(Vector(-8, 5, 0), Vector(-2, 5, 0)), False)
sketch14.addGeometry(Part.LineSegment(Vector(-2, 5, 0), Vector(-2, 20, 0)), False)
sketch14.addGeometry(Part.LineSegment(Vector(-2, 20, 0), Vector(-8, 20, 0)), False)
sketch14.addGeometry(Part.LineSegment(Vector(28, 20, 0), Vector(28, 5, 0)), False)
sketch14.addGeometry(Part.LineSegment(Vector(28, 5, 0), Vector(32, 5, 0)), False)
sketch14.addGeometry(Part.LineSegment(Vector(32, 5, 0), Vector(32, 20, 0)), False)
sketch14.addGeometry(Part.LineSegment(Vector(32, 20, 0), Vector(28, 20, 0)), False)
sketch14.addConstraint(Sketcher.Constraint("Coincident", 0, 2, 1, 1))
sketch14.addConstraint(Sketcher.Constraint("Coincident", 1, 2, 2, 1))
sketch14.addConstraint(Sketcher.Constraint("Coincident", 2, 2, 3, 1))
sketch14.addConstraint(Sketcher.Constraint("Coincident", 3, 2, 0, 1))
sketch14.addConstraint(Sketcher.Constraint("Coincident", 4, 2, 5, 1))
sketch14.addConstraint(Sketcher.Constraint("Coincident", 5, 2, 6, 1))
sketch14.addConstraint(Sketcher.Constraint("Coincident", 6, 2, 7, 1))
sketch14.addConstraint(Sketcher.Constraint("Coincident", 7, 2, 4, 1))
sketch14.addConstraint(Sketcher.Constraint("Vertical", 0))
sketch14.addConstraint(Sketcher.Constraint("Horizontal", 1))
sketch14.addConstraint(Sketcher.Constraint("Vertical", 2))
sketch14.addConstraint(Sketcher.Constraint("Horizontal", 3))
sketch14.addConstraint(Sketcher.Constraint("Vertical", 4))
sketch14.addConstraint(Sketcher.Constraint("Horizontal", 5))
sketch14.addConstraint(Sketcher.Constraint("Vertical", 6))
sketch14.addConstraint(Sketcher.Constraint("Horizontal", 7))
sketch14.addConstraint(Sketcher.Constraint("Horizontal", 1, 2, 4, 2))
sketch14.addConstraint(Sketcher.Constraint("Horizontal", 3, 2, 6, 2))
sketch14.addConstraint(Sketcher.Constraint("Equal", 3, 5))
sketch14.addConstraint(Sketcher.Constraint("DistanceX", 1, 1, 1, 2, 5.0))
sketch14.addConstraint(Sketcher.Constraint("DistanceY", 0, 2, 0, 1, 15.0))
sketch14.addConstraint(Sketcher.Constraint("DistanceY", -1, 1, 0, 2, 5.0))
sketch14.addConstraint(Sketcher.Constraint("DistanceX", 1, 2, 4, 2, 30.0))
sketch14.addConstraint(Sketcher.Constraint("DistanceX", 0, 2, -1, 1, 7.5))
pocket6 = body.newObject("PartDesign::Pocket", "Pocket005")
pocket6.Profile = sketch14
pocket6.Type = "ThroughAll"

sketch15 = body.newObject("Sketcher::SketchObject", "Sketch014")
sketch15.AttachmentSupport = (doc.getObject("YZ_Plane"), [""])
sketch15.MapMode = "FlatFace"
sketch15.AttachmentOffset = App.Placement(Vector(0, 0, 30), App.Rotation())
sketch15.addGeometry(Part.LineSegment(Vector(65, 0, 0), Vector(50, 0, 0)), False)
sketch15.addGeometry(Part.LineSegment(Vector(50, 0, 0), Vector(50, -5, 0)), False)
sketch15.addGeometry(Part.LineSegment(Vector(50, -5, 0), Vector(65, -5, 0)), False)
sketch15.addGeometry(Part.LineSegment(Vector(65, -5, 0), Vector(65, 0, 0)), False)
sketch15.addConstraint(Sketcher.Constraint("Coincident", 0, 2, 1, 1))
sketch15.addConstraint(Sketcher.Constraint("Coincident", 1, 2, 2, 1))
sketch15.addConstraint(Sketcher.Constraint("Coincident", 2, 2, 3, 1))
sketch15.addConstraint(Sketcher.Constraint("Coincident", 3, 2, 0, 1))
sketch15.addConstraint(Sketcher.Constraint("Horizontal", 0))
sketch15.addConstraint(Sketcher.Constraint("Vertical", 1))
sketch15.addConstraint(Sketcher.Constraint("Horizontal", 2))
sketch15.addConstraint(Sketcher.Constraint("Vertical", 3))
sketch15.addConstraint(Sketcher.Constraint("PointOnObject", 0, 2, -1))
sketch15.addConstraint(Sketcher.Constraint("DistanceX", 0, 2, 0, 1, 15.0))
sketch15.addConstraint(Sketcher.Constraint("DistanceY", 1, 2, 1, 1, 5.0))
sketch15.addConstraint(Sketcher.Constraint("DistanceX", -1, 1, 0, 2, 50.0))
pocket7 = body.newObject("PartDesign::Pocket", "Pocket006")
pocket7.Profile = sketch15
pocket7.Type = "ThroughAll"

sketch16 = body.newObject("Sketcher::SketchObject", "Sketch015")
sketch16.AttachmentSupport = (doc.getObject("XY_Plane"), [""])
sketch16.MapMode = "FlatFace"
sketch16.addGeometry(Part.LineSegment(Vector(5, 65, 0), Vector(5, 50, 0)), False)
sketch16.addGeometry(Part.LineSegment(Vector(5, 50, 0), Vector(0, 50, 0)), False)
sketch16.addGeometry(Part.LineSegment(Vector(0, 50, 0), Vector(0, 65, 0)), False)
sketch16.addGeometry(Part.LineSegment(Vector(0, 65, 0), Vector(5, 65, 0)), False)
sketch16.addGeometry(Part.LineSegment(Vector(25, 65, 0), Vector(25, 50, 0)), False)
sketch16.addGeometry(Part.LineSegment(Vector(25, 50, 0), Vector(20, 50, 0)), False)
sketch16.addGeometry(Part.LineSegment(Vector(20, 50, 0), Vector(20, 65, 0)), False)
sketch16.addGeometry(Part.LineSegment(Vector(20, 65, 0), Vector(25, 65, 0)), False)
sketch16.addConstraint(Sketcher.Constraint("Coincident", 0, 2, 1, 1))
sketch16.addConstraint(Sketcher.Constraint("Coincident", 1, 2, 2, 1))
sketch16.addConstraint(Sketcher.Constraint("Coincident", 2, 2, 3, 1))
sketch16.addConstraint(Sketcher.Constraint("Coincident", 3, 2, 0, 1))
sketch16.addConstraint(Sketcher.Constraint("Coincident", 4, 2, 5, 1))
sketch16.addConstraint(Sketcher.Constraint("Coincident", 5, 2, 6, 1))
sketch16.addConstraint(Sketcher.Constraint("Coincident", 6, 2, 7, 1))
sketch16.addConstraint(Sketcher.Constraint("Coincident", 7, 2, 4, 1))
sketch16.addConstraint(Sketcher.Constraint("Vertical", 0))
sketch16.addConstraint(Sketcher.Constraint("Horizontal", 1))
sketch16.addConstraint(Sketcher.Constraint("Vertical", 2))
sketch16.addConstraint(Sketcher.Constraint("Horizontal", 3))
sketch16.addConstraint(Sketcher.Constraint("Vertical", 4))
sketch16.addConstraint(Sketcher.Constraint("Horizontal", 5))
sketch16.addConstraint(Sketcher.Constraint("Vertical", 6))
sketch16.addConstraint(Sketcher.Constraint("Horizontal", 7))
sketch16.addConstraint(Sketcher.Constraint("PointOnObject", 1, 2, -2))
sketch16.addConstraint(Sketcher.Constraint("Horizontal", 1, 2, 4, 2))
sketch16.addConstraint(Sketcher.Constraint("Horizontal", 3, 2, 6, 2))
sketch16.addConstraint(Sketcher.Constraint("Equal", 3, 5))
sketch16.addConstraint(Sketcher.Constraint("DistanceX", 1, 2, 1, 1, 5.0))
sketch16.addConstraint(Sketcher.Constraint("DistanceY", 0, 2, 0, 1, 15.0))
sketch16.addConstraint(Sketcher.Constraint("DistanceY", -1, 1, 0, 2, 50.0))
sketch16.addConstraint(Sketcher.Constraint("DistanceX", -1, 1, 4, 2, 25.0))
pocket8 = body.newObject("PartDesign::Pocket", "Pocket007")
pocket8.Profile = sketch16
pocket8.Type = "ThroughAll"
pocket8.Reversed = True

doc.recompute()
